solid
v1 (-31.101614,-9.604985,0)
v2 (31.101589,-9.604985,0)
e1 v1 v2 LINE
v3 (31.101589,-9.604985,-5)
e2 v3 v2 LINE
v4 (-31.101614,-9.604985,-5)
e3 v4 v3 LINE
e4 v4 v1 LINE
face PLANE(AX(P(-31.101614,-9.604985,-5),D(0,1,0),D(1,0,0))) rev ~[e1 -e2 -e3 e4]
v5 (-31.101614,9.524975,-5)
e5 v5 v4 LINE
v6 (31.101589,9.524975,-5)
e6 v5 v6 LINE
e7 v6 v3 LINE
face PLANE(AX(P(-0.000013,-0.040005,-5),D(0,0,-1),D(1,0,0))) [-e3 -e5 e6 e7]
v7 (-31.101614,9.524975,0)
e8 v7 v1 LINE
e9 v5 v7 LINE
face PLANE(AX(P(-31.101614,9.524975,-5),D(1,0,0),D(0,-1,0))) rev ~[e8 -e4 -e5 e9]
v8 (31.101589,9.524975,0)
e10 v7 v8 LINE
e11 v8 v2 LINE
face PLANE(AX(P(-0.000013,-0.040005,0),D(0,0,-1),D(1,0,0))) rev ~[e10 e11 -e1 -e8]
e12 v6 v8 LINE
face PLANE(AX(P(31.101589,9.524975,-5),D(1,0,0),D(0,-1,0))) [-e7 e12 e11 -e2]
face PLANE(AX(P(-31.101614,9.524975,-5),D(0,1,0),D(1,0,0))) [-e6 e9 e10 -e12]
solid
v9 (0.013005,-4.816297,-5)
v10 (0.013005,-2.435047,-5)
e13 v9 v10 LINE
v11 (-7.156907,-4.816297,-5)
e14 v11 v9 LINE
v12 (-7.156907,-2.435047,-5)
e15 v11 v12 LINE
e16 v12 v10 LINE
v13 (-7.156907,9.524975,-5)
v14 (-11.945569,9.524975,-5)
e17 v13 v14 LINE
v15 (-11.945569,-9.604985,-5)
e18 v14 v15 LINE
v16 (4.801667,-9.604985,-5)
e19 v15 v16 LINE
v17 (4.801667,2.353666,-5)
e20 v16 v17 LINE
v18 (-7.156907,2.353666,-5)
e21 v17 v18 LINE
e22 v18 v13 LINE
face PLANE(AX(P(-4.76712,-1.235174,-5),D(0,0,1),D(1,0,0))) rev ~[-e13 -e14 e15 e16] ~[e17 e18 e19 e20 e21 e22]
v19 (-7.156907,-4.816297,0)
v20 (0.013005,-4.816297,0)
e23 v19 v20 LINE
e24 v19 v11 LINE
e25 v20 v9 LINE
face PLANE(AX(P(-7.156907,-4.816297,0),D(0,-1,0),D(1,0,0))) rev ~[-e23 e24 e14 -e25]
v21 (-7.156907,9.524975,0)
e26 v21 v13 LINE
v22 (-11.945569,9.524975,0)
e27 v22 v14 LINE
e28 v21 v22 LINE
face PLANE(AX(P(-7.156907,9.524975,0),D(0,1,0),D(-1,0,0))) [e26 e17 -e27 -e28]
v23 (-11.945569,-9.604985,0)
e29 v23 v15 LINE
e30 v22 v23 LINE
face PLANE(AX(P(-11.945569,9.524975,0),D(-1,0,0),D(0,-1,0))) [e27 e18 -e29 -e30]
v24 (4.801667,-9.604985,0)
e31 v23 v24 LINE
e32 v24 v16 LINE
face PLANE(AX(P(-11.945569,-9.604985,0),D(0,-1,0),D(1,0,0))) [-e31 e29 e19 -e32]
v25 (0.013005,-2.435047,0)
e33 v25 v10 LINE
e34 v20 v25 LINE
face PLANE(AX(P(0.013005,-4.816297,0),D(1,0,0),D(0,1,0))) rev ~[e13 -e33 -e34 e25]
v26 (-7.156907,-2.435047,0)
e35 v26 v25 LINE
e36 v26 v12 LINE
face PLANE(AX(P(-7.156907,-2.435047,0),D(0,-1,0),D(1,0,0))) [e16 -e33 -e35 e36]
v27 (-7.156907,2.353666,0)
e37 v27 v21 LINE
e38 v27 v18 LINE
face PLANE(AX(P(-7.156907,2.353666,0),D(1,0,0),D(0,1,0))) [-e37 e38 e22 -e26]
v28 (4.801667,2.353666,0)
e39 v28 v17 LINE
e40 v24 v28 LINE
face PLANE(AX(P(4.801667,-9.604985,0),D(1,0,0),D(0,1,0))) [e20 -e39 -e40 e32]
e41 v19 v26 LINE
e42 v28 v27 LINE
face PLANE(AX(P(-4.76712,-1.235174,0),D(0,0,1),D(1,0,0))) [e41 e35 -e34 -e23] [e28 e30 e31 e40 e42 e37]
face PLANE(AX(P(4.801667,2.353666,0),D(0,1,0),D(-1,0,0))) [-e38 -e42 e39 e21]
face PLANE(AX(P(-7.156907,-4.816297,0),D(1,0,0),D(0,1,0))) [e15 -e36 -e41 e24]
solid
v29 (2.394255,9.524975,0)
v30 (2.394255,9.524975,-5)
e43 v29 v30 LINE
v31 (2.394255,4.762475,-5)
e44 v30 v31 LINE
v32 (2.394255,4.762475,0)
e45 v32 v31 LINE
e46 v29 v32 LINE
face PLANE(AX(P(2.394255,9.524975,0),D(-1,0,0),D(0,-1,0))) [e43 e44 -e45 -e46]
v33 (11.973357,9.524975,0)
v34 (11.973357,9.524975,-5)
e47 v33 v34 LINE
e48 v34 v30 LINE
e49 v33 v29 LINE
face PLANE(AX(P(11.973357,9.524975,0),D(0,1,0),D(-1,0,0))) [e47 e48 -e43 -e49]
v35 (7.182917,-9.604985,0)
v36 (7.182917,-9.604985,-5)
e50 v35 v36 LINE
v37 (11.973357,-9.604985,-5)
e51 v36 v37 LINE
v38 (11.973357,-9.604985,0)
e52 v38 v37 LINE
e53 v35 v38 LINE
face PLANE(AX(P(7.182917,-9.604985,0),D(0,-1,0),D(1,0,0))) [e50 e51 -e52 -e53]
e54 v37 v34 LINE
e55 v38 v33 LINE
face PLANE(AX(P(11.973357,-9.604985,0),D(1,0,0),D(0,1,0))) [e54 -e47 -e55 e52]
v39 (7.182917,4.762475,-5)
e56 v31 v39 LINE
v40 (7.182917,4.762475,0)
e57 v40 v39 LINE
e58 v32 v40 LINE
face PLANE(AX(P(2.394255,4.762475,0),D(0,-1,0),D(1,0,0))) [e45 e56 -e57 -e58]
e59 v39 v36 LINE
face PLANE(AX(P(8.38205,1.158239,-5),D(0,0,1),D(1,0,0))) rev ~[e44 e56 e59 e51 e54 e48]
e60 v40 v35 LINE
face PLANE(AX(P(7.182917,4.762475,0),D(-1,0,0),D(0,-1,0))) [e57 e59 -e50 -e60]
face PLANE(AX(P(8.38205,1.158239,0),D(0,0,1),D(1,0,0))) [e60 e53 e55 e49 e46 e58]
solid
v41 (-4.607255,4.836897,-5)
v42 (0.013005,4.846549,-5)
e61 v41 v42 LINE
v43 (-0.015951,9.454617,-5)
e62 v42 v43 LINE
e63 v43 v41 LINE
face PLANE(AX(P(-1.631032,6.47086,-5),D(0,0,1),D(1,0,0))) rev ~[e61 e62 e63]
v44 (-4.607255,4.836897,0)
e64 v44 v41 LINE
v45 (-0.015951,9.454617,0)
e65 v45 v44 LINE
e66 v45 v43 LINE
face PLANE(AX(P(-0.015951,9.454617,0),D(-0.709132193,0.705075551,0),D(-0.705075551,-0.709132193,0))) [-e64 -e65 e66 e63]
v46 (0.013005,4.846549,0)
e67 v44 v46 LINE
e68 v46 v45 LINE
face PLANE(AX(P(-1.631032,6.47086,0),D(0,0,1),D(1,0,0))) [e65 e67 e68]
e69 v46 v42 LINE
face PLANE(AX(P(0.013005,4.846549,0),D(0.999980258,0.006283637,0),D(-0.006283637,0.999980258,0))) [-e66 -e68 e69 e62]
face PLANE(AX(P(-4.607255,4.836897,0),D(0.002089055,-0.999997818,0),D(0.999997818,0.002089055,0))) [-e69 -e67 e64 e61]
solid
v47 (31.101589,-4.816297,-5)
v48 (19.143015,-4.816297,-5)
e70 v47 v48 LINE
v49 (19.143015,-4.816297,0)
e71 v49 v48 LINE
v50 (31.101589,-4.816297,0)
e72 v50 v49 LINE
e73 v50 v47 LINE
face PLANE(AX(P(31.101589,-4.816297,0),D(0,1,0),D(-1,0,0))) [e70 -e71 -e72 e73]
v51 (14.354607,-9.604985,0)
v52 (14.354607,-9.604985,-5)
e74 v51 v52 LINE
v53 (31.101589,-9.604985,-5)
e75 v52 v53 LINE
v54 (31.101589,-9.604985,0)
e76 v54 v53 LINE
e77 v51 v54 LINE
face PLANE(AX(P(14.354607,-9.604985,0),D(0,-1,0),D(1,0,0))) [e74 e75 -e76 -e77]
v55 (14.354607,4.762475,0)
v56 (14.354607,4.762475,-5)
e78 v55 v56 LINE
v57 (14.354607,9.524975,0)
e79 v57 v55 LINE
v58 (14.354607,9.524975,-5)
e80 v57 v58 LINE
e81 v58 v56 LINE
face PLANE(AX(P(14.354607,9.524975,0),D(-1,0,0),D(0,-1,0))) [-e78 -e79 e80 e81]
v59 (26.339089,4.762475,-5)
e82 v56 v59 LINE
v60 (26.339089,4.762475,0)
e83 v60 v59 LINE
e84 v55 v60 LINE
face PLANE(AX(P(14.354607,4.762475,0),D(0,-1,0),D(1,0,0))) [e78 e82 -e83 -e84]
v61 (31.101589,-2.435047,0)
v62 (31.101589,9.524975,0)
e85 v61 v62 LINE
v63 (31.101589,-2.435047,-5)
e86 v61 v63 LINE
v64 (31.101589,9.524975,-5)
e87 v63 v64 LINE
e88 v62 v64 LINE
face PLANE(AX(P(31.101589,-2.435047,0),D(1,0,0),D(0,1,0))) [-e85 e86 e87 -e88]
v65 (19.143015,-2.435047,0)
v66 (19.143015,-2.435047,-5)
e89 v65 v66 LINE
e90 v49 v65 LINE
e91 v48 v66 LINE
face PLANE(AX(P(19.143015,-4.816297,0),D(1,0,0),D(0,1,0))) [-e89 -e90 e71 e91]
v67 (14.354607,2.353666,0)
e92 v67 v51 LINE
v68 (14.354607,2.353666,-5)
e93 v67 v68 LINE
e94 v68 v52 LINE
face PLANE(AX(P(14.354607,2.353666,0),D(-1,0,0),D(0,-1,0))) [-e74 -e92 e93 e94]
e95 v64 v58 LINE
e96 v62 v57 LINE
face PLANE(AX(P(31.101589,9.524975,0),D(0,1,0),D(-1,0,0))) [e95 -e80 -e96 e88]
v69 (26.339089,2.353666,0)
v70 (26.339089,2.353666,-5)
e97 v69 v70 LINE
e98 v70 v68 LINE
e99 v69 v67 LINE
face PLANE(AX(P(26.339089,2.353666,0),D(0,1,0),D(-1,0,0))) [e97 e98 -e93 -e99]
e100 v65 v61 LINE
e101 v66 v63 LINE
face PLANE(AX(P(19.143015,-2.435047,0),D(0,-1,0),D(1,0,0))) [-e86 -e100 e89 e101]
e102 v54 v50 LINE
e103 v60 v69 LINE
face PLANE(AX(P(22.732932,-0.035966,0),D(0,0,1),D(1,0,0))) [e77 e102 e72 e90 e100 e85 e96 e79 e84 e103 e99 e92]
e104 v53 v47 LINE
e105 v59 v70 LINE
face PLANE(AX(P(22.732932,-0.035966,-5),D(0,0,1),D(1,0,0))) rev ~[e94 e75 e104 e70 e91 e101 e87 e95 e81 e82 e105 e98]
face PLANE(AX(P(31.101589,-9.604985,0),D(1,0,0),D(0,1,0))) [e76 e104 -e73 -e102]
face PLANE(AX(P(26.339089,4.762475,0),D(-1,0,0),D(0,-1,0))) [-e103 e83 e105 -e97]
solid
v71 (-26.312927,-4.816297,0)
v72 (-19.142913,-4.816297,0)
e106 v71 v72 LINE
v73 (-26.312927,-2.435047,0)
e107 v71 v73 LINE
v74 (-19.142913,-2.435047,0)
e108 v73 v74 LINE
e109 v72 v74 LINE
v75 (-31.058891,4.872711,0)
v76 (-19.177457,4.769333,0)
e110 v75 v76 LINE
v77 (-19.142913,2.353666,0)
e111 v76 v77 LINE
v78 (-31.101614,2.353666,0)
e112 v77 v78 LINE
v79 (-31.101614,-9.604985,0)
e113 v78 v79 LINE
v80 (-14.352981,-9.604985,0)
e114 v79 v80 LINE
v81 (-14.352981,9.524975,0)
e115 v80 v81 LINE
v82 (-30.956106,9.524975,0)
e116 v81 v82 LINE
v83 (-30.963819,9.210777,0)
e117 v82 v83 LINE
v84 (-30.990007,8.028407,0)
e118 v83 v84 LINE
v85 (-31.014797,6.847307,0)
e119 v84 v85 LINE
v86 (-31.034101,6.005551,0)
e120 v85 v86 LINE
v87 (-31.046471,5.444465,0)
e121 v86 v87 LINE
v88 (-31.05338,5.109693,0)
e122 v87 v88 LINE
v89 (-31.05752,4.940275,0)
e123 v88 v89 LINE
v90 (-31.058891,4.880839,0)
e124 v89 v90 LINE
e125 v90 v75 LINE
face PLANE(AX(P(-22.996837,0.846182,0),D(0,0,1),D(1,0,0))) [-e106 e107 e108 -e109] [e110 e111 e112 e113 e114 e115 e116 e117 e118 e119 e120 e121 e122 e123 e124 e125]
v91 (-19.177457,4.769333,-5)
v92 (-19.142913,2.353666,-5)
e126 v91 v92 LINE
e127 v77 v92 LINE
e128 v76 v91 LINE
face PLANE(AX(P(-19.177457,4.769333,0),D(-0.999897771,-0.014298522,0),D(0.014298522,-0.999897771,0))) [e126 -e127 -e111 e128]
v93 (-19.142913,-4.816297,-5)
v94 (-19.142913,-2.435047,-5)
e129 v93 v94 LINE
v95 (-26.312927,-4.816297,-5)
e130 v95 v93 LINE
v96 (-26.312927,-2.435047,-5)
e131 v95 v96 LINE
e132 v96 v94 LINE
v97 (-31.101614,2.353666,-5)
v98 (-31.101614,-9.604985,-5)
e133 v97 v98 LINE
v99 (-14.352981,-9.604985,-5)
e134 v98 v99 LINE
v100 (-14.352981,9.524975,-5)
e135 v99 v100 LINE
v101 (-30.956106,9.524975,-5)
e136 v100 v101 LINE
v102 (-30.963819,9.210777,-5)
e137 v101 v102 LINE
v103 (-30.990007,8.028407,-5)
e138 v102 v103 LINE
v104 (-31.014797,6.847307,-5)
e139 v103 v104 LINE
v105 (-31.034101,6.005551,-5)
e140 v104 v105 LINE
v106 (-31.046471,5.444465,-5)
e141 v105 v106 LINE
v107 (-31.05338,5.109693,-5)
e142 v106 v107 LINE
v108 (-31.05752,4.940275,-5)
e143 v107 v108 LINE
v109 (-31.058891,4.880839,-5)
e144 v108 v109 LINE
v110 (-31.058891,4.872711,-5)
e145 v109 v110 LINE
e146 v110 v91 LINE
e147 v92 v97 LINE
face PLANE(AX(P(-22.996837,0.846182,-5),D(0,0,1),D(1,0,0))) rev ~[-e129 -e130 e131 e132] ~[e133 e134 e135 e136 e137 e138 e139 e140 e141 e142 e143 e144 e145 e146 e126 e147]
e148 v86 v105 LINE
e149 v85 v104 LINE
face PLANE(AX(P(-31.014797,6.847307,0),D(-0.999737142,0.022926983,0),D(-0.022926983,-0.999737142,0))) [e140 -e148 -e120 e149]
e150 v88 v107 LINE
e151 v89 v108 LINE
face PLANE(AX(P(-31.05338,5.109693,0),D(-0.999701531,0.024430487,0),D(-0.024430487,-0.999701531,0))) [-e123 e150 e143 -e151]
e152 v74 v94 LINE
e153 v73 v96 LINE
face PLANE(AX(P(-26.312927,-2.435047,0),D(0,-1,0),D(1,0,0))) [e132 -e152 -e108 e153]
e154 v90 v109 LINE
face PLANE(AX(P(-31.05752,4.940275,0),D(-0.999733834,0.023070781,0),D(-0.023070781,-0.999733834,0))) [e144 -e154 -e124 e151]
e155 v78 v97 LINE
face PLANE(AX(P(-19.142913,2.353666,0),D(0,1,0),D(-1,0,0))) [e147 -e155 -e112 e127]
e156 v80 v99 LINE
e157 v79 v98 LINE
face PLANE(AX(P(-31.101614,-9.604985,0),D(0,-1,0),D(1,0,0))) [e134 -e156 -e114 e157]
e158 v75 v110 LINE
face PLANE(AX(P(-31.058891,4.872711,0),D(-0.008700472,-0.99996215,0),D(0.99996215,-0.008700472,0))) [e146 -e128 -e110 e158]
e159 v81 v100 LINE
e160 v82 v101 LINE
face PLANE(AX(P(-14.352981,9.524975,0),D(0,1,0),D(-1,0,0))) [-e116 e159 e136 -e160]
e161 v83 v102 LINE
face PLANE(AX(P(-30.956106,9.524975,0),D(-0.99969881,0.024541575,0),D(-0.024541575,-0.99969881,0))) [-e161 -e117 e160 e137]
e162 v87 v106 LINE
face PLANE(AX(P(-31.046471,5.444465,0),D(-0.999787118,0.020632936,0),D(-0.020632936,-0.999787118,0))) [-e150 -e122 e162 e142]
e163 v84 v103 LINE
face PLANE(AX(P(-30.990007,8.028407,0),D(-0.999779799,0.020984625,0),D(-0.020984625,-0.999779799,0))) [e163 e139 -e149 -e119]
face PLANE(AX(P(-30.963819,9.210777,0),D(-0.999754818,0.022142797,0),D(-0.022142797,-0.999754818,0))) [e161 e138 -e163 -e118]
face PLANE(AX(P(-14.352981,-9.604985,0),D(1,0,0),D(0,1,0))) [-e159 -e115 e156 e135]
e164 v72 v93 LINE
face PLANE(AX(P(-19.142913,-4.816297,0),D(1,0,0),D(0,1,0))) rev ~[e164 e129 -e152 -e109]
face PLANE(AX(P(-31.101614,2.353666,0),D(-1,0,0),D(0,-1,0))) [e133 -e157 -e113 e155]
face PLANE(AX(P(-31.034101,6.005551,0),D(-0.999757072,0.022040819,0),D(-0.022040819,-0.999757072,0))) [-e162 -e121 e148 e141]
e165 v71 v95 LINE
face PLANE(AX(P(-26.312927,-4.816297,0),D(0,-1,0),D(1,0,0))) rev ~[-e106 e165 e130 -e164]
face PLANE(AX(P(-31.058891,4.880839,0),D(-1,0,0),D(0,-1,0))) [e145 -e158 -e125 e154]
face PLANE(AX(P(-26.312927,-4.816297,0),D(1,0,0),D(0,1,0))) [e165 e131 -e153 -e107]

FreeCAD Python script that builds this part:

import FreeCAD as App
import Part
import Sketcher
Q = App.Units.Quantity


def add_polygon(sketch, points):
    """Adds a closed chain of lines whose ends are joined by coincident constraints."""
    first, n = sketch.GeometryCount, len(points)
    for a, b in zip(points, points[1:] + points[:1]):
        sketch.addGeometry(Part.LineSegment(App.Vector(*a, 0), App.Vector(*b, 0)), False)
    for i in range(n):
        sketch.addConstraint(Sketcher.Constraint("Coincident", first + i, 2, first + (i + 1) % n, 1))

doc = App.newDocument("Part")
body = doc.addObject("PartDesign::Body", "Body")

sketch1 = body.newObject("Sketcher::SketchObject", "Sketch")
sketch1.AttachmentSupport = (doc.getObject("XY_Plane"), [""])
sketch1.MapMode = "FlatFace"
add_polygon(sketch1, [(19.143015, -2.435047), (31.101589, -2.435047), (31.101589, 9.524975), (14.354607, 9.524975), (14.354607, 4.762475), (26.339089, 4.762475), (26.339089, 2.353666), (14.354607, 2.353666), (14.354607, -9.604985), (31.101589, -9.604985), (31.101589, -4.816297), (19.143015, -4.816297)])
sketch1.addConstraint(Sketcher.Constraint("Horizontal", 0))
sketch1.addConstraint(Sketcher.Constraint("Vertical", 1))
sketch1.addConstraint(Sketcher.Constraint("Horizontal", 2))
sketch1.addConstraint(Sketcher.Constraint("Vertical", 3))
sketch1.addConstraint(Sketcher.Constraint("Horizontal", 4))
sketch1.addConstraint(Sketcher.Constraint("Vertical", 5))
sketch1.addConstraint(Sketcher.Constraint("Horizontal", 6))
sketch1.addConstraint(Sketcher.Constraint("Vertical", 7))
sketch1.addConstraint(Sketcher.Constraint("Horizontal", 8))
sketch1.addConstraint(Sketcher.Constraint("Vertical", 9))
sketch1.addConstraint(Sketcher.Constraint("Horizontal", 10))
sketch1.addConstraint(Sketcher.Constraint("Vertical", 11))
sketch1.addConstraint(Sketcher.Constraint("Vertical", 3, 2, 6, 2))
sketch1.addConstraint(Sketcher.Constraint("Vertical", 1, 2, 8, 2))
sketch1.addConstraint(Sketcher.Constraint("DistanceY", 3, 2, 3, 1, Q("0.1875 in")))
sketch1.addConstraint(Sketcher.Constraint("DistanceY", 11, 1, 11, 2, Q("0.09375 in")))
sketch1.addConstraint(Sketcher.Constraint("DistanceX", 4, 2, 1, 2, Q("0.1875 in")))
sketch1.addConstraint(Sketcher.Constraint("DistanceX", 2, 2, 2, 1, 16.746982))
sketch1.addConstraint(Sketcher.Constraint("DistanceY", 1, 1, 1, 2, 11.960022))
sketch1.addConstraint(Sketcher.Constraint("DistanceY", 5, 2, 5, 1, 2.408809))
sketch1.addConstraint(Sketcher.Constraint("DistanceY", 7, 2, 7, 1, 11.95865))
sketch1.addConstraint(Sketcher.Constraint("DistanceX", 0, 1, 0, 2, 11.958574))
sketch1.addConstraint(Sketcher.Constraint("DistanceX", -1, 1, 0, 2, 31.101589))
sketch1.addConstraint(Sketcher.Constraint("DistanceY", 0, 2, -1, 1, 2.435047))
pad1 = body.newObject("PartDesign::Pad", "Pad")
pad1.Profile = sketch1
pad1.Length = 5
pad1.Reversed = True
body2 = doc.addObject("PartDesign::Body", "Body001")

sketch2 = body2.newObject("Sketcher::SketchObject", "Sketch001")
sketch2.AttachmentSupport = (doc.getObject("XY_Plane001"), [""])
sketch2.MapMode = "FlatFace"
add_polygon(sketch2, [(2.394255, 4.762475), (7.182917, 4.762475), (7.182917, -9.604985), (11.973357, -9.604985), (11.973357, 9.524975), (2.394255, 9.524975)])
sketch2.addConstraint(Sketcher.Constraint("Horizontal", 0))
sketch2.addConstraint(Sketcher.Constraint("Vertical", 1))
sketch2.addConstraint(Sketcher.Constraint("Horizontal", 2))
sketch2.addConstraint(Sketcher.Constraint("Vertical", 3))
sketch2.addConstraint(Sketcher.Constraint("Horizontal", 4))
sketch2.addConstraint(Sketcher.Constraint("Vertical", 5))
sketch2.addConstraint(Sketcher.Constraint("DistanceY", 5, 2, 5, 1, Q("0.1875 in")))
sketch2.addConstraint(Sketcher.Constraint("DistanceX", 2, 1, 2, 2, Q("0.1886 in")))
sketch2.addConstraint(Sketcher.Constraint("DistanceX", 4, 2, 4, 1, 9.579102))
sketch2.addConstraint(Sketcher.Constraint("DistanceY", 1, 2, 1, 1, 14.367459))
sketch2.addConstraint(Sketcher.Constraint("DistanceX", -1, 1, 0, 2, 7.182917))
sketch2.addConstraint(Sketcher.Constraint("DistanceY", -1, 1, 0, 2, 4.762475))
pad2 = body2.newObject("PartDesign::Pad", "Pad001")
pad2.Profile = sketch2
pad2.Length = 5
pad2.Reversed = True
body3 = doc.addObject("PartDesign::Body", "Body002")

sketch3 = body3.newObject("Sketcher::SketchObject", "Sketch002")
sketch3.AttachmentSupport = (doc.getObject("XY_Plane002"), [""])
sketch3.MapMode = "FlatFace"
add_polygon(sketch3, [(-4.607255, 4.836897), (0.013005, 4.846549), (-0.015951, 9.454617)])
sketch3.addConstraint(Sketcher.Constraint("DistanceX", 2, 2, 0, 2, Q("0.1819 in")))
sketch3.addConstraint(Sketcher.Constraint("DistanceY", 2, 2, 1, 2, Q("0.1818 in")))
sketch3.addConstraint(Sketcher.Constraint("Distance", 1, 4.608159))
sketch3.addConstraint(Sketcher.Constraint("Distance", 2, 6.51179))
sketch3.addConstraint(Sketcher.Constraint("DistanceY", -1, 1, 0, 2, 4.846549))
sketch3.addConstraint(Sketcher.Constraint("DistanceX", 1, 2, -1, 1, 0.015951))
pad3 = body3.newObject("PartDesign::Pad", "Pad002")
pad3.Profile = sketch3
pad3.Length = 5
pad3.Reversed = True
body4 = doc.addObject("PartDesign::Body", "Body003")

sketch4 = body4.newObject("Sketcher::SketchObject", "Sketch003")
sketch4.AttachmentSupport = (doc.getObject("XY_Plane003"), [""])
sketch4.MapMode = "FlatFace"
add_polygon(sketch4, [(-7.156907, 9.524975), (-11.945569, 9.524975), (-11.945569, -9.604985), (4.801667, -9.604985), (4.801667, 2.353666), (-7.156907, 2.353666)])
add_polygon(sketch4, [(0.013005, -4.816297), (-7.156907, -4.816297), (-7.156907, -2.435047), (0.013005, -2.435047)])
sketch4.addConstraint(Sketcher.Constraint("Horizontal", 0))
sketch4.addConstraint(Sketcher.Constraint("Vertical", 1))
sketch4.addConstraint(Sketcher.Constraint("Horizontal", 2))
sketch4.addConstraint(Sketcher.Constraint("Vertical", 3))
sketch4.addConstraint(Sketcher.Constraint("Horizontal", 4))
sketch4.addConstraint(Sketcher.Constraint("Vertical", 5))
sketch4.addConstraint(Sketcher.Constraint("Horizontal", 6))
sketch4.addConstraint(Sketcher.Constraint("Vertical", 7))
sketch4.addConstraint(Sketcher.Constraint("Horizontal", 8))
sketch4.addConstraint(Sketcher.Constraint("Vertical", 9))
sketch4.addConstraint(Sketcher.Constraint("Vertical", 5, 2, 6, 2))
sketch4.addConstraint(Sketcher.Constraint("DistanceY", 7, 1, 7, 2, Q("0.09375 in")))
sketch4.addConstraint(Sketcher.Constraint("DistanceX", 0, 2, 0, 1, 4.788662))
sketch4.addConstraint(Sketcher.Constraint("DistanceY", 1, 2, 1, 1, 19.129959))
sketch4.addConstraint(Sketcher.Constraint("DistanceY", 3, 1, 3, 2, 11.95865))
sketch4.addConstraint(Sketcher.Constraint("DistanceX", 2, 1, 2, 2, 16.747236))
sketch4.addConstraint(Sketcher.Constraint("DistanceX", 6, 2, 6, 1, 7.169912))
sketch4.addConstraint(Sketcher.Constraint("DistanceX", 0, 2, -1, 1, 11.945569))
sketch4.addConstraint(Sketcher.Constraint("DistanceY", 6, 2, 5, 2, 14.341272))
sketch4.addConstraint(Sketcher.Constraint("DistanceY", -1, 1, 0, 2, 9.524975))
pad4 = body4.newObject("PartDesign::Pad", "Pad003")
pad4.Profile = sketch4
pad4.Length = 5
pad4.Reversed = True
body5 = doc.addObject("PartDesign::Body", "Body004")

sketch5 = body5.newObject("Sketcher::SketchObject", "Sketch004")
sketch5.AttachmentSupport = (doc.getObject("XY_Plane004"), [""])
sketch5.MapMode = "FlatFace"
add_polygon(sketch5, [(-14.352981, 9.524975), (-30.956106, 9.524975), (-30.963819, 9.210777), (-30.990007, 8.028407), (-31.014797, 6.847307), (-31.034101, 6.005551), (-31.046471, 5.444465), (-31.05338, 5.109693), (-31.05752, 4.940275), (-31.058891, 4.880839), (-31.058891, 4.872711), (-19.177457, 4.769333), (-19.142913, 2.353666), (-31.101614, 2.353666), (-31.101614, -9.604985), (-14.352981, -9.604985)])
add_polygon(sketch5, [(-19.142913, -4.816297), (-26.312927, -4.816297), (-26.312927, -2.435047), (-19.142913, -2.435047)])
sketch5.addConstraint(Sketcher.Constraint("Horizontal", 0))
sketch5.addConstraint(Sketcher.Constraint("Vertical", 9))
sketch5.addConstraint(Sketcher.Constraint("Horizontal", 12))
sketch5.addConstraint(Sketcher.Constraint("Vertical", 13))
sketch5.addConstraint(Sketcher.Constraint("Horizontal", 14))
sketch5.addConstraint(Sketcher.Constraint("Vertical", 15))
sketch5.addConstraint(Sketcher.Constraint("Horizontal", 16))
sketch5.addConstraint(Sketcher.Constraint("Vertical", 17))
sketch5.addConstraint(Sketcher.Constraint("Horizontal", 18))
sketch5.addConstraint(Sketcher.Constraint("Vertical", 19))
sketch5.addConstraint(Sketcher.Constraint("Vertical", 11, 2, 18, 2))
sketch5.addConstraint(Sketcher.Constraint("DistanceY", 17, 1, 17, 2, Q("0.09375 in")))
sketch5.addConstraint(Sketcher.Constraint("DistanceX", 12, 2, 12, 1, 11.958701))
sketch5.addConstraint(Sketcher.Constraint("DistanceY", 3, 2, 2, 2, Q("0.0465 in")))
sketch5.addConstraint(Sketcher.Constraint("DistanceY", 9, 2, 4, 2, Q("0.0446 in")))
sketch5.addConstraint(Sketcher.Constraint("DistanceY", 10, 2, 6, 2, Q("0.0134 in")))
sketch5.addConstraint(Sketcher.Constraint("DistanceY", 9, 2, 9, 1, 0.008128))
sketch5.addConstraint(Sketcher.Constraint("DistanceY", 13, 2, 13, 1, 11.95865))
sketch5.addConstraint(Sketcher.Constraint("DistanceY", 15, 1, 15, 2, 19.129959))
sketch5.addConstraint(Sketcher.Constraint("DistanceX", 4, 2, -1, 1, 31.034101))
sketch5.addConstraint(Sketcher.Constraint("DistanceX", 2, 2, 0, 2, 0.033901))
sketch5.addConstraint(Sketcher.Constraint("DistanceY", 12, 2, 5, 2, 3.090799))
sketch5.addConstraint(Sketcher.Constraint("Distance", 2, 1.18266))
sketch5.addConstraint(Sketcher.Constraint("Distance", 3, 1.18136))
sketch5.addConstraint(Sketcher.Constraint("Distance", 7, 0.169469))
sketch5.addConstraint(Sketcher.Constraint("Distance", 8, 0.059452))
sketch5.addConstraint(Sketcher.Constraint("DistanceX", 0, 2, 0, 1, 16.603125))
sketch5.addConstraint(Sketcher.Constraint("DistanceX", 14, 1, 14, 2, 16.748633))
sketch5.addConstraint(Sketcher.Constraint("DistanceX", 16, 2, 16, 1, 7.170014))
sketch5.addConstraint(Sketcher.Constraint("DistanceX", 1, 2, -1, 1, 30.963819))
sketch5.addConstraint(Sketcher.Constraint("DistanceY", -1, 1, 4, 2, 6.005551))
sketch5.addConstraint(Sketcher.Constraint("DistanceX", 5, 2, -1, 1, 31.046471))
sketch5.addConstraint(Sketcher.Constraint("DistanceX", 6, 2, -1, 1, 31.05338))
sketch5.addConstraint(Sketcher.Constraint("DistanceX", 7, 2, -1, 1, 31.05752))
sketch5.addConstraint(Sketcher.Constraint("DistanceX", 8, 2, -1, 1, 31.058891))
sketch5.addConstraint(Sketcher.Constraint("DistanceX", 14, 2, -1, 1, 14.352981))
sketch5.addConstraint(Sketcher.Constraint("DistanceY", 3, 2, 0, 2, 2.677668))
sketch5.addConstraint(Sketcher.Constraint("DistanceY", 7, 2, 5, 2, 0.50419))
sketch5.addConstraint(Sketcher.Constraint("DistanceY", 18, 2, 10, 2, 7.20438))
sketch5.addConstraint(Sketcher.Constraint("Distance", 10, 11.881884))
pad5 = body5.newObject("PartDesign::Pad", "Pad004")
pad5.Profile = sketch5
pad5.Length = 5
pad5.Reversed = True
body6 = doc.addObject("PartDesign::Body", "Body005")

sketch6 = body6.newObject("Sketcher::SketchObject", "Sketch005")
sketch6.AttachmentSupport = (doc.getObject("XY_Plane005"), [""])
sketch6.MapMode = "FlatFace"
sketch6.AttachmentOffset = App.Placement(App.Vector(0, 0, -5), App.Rotation())
add_polygon(sketch6, [(-31.101614, -9.604985), (-31.101614, 9.524975), (31.101589, 9.524975), (31.101589, -9.604985)])
sketch6.addConstraint(Sketcher.Constraint("Vertical", 0))
sketch6.addConstraint(Sketcher.Constraint("Horizontal", 1))
sketch6.addConstraint(Sketcher.Constraint("Vertical", 2))
sketch6.addConstraint(Sketcher.Constraint("Horizontal", 3))
sketch6.addConstraint(Sketcher.Constraint("DistanceY", 0, 1, 0, 2, 19.129959))
sketch6.addConstraint(Sketcher.Constraint("DistanceX", 1, 1, 1, 2, 62.203203))
sketch6.addConstraint(Sketcher.Constraint("DistanceX", -1, 1, 1, 2, 31.101589))
sketch6.addConstraint(Sketcher.Constraint("DistanceY", -1, 1, 0, 2, 9.524975))
pad6 = body6.newObject("PartDesign::Pad", "Pad005")
pad6.Profile = sketch6
pad6.Length = 5

doc.recompute()
